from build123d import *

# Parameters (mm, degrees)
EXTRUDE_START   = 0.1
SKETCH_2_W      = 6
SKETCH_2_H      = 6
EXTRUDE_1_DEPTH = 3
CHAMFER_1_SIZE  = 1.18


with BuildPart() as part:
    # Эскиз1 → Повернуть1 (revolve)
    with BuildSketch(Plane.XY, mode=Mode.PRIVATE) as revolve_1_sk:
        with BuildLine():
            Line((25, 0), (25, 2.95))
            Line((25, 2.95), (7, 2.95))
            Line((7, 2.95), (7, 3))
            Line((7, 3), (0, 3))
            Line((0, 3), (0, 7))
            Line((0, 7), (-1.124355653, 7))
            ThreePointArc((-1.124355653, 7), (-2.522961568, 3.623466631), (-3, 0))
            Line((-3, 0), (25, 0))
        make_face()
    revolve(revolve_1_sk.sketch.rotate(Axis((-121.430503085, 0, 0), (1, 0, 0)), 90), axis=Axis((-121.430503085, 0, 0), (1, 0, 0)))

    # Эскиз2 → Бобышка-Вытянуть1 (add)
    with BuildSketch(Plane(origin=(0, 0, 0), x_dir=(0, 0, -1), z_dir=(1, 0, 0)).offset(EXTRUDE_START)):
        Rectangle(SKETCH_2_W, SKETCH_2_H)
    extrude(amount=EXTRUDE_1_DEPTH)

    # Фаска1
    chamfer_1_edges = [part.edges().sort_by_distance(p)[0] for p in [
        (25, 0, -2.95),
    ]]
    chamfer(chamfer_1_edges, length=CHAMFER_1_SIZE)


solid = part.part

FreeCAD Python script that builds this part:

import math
import FreeCAD as App
import Part
import Sketcher
from FreeCAD import Vector
Q = App.Units.Quantity


def edges_at(feature, points):
    """Names of the edges that pass closest to the given points."""
    edges = feature.Shape.Edges
    near = lambda p: min(range(len(edges)), key=lambda i: edges[i].distToShape(Part.Vertex(*p))[0])
    return sorted({f"Edge{near(p) + 1}" for p in points})


def add_polygon(sketch, points):
    """Adds a closed chain of lines whose ends are joined by coincident constraints."""
    first, n = sketch.GeometryCount, len(points)
    for a, b in zip(points, points[1:] + points[:1]):
        sketch.addGeometry(Part.LineSegment(App.Vector(*a, 0), App.Vector(*b, 0)), False)
    for i in range(n):
        sketch.addConstraint(Sketcher.Constraint("Coincident", first + i, 2, first + (i + 1) % n, 1))

doc = App.newDocument("Part")
body = doc.addObject("PartDesign::Body", "Body")

# Sketch on XY plane
sketch1 = body.newObject("Sketcher::SketchObject", "Sketch")
sketch1.AttachmentSupport = (doc.getObject("XY_Plane"), [""])
sketch1.MapMode = "FlatFace"
sketch1.addGeometry([
    Part.LineSegment(Vector(25, 0, 0), Vector(25, 2.95, 0)),  # 0
    Part.LineSegment(Vector(25, 2.95, 0), Vector(7, 2.95, 0)),  # 1
    Part.LineSegment(Vector(7, 2.95, 0), Vector(7, 3, 0)),  # 2
    Part.LineSegment(Vector(7, 3, 0), Vector(0, 3, 0)),  # 3
    Part.LineSegment(Vector(0, 3, 0), Vector(0, 7, 0)),  # 4
    Part.LineSegment(Vector(0, 7, 0), Vector(-1.124356, 7, 0)),  # 5
    Part.ArcOfCircle(Part.Circle(Vector(11, 0, 0), Vector(0, 0, 1), 14), math.radians(150), math.radians(180)),  # 6
    Part.LineSegment(Vector(-3, 0, 0), Vector(25, 0, 0)),  # 7
], False)
sketch1.addConstraint([
    Sketcher.Constraint("Coincident", 0, 2, 1, 1),
    Sketcher.Constraint("Coincident", 1, 2, 2, 1),
    Sketcher.Constraint("Coincident", 2, 2, 3, 1),
    Sketcher.Constraint("Coincident", 3, 2, 4, 1),
    Sketcher.Constraint("Coincident", 4, 2, 5, 1),
    Sketcher.Constraint("Coincident", 5, 2, 6, 1),
    Sketcher.Constraint("Coincident", 6, 2, 7, 1),
    Sketcher.Constraint("Coincident", 7, 2, 0, 1),
    Sketcher.Constraint("Vertical", 0),
    Sketcher.Constraint("Horizontal", 1),
    Sketcher.Constraint("Vertical", 2),
    Sketcher.Constraint("Horizontal", 3),
    Sketcher.Constraint("Vertical", 4),
    Sketcher.Constraint("Horizontal", 5),
    Sketcher.Constraint("Horizontal", 7),
    Sketcher.Constraint("PointOnObject", 6, 3, -1),
    Sketcher.Constraint("PointOnObject", 3, 2, -2),
    Sketcher.Constraint("PointOnObject", 6, 2, -1),
    Sketcher.Constraint("Radius", 6, Q("14 mm")),
    Sketcher.Constraint("DistanceX", 1, 2, 1, 1, Q("18 mm")),
    Sketcher.Constraint("DistanceX", 3, 2, 3, 1, Q("7 mm")),
    Sketcher.Constraint("DistanceX", 7, 1, 7, 2, Q("28 mm")),
    Sketcher.Constraint("DistanceY", 4, 1, 4, 2, Q("4 mm")),
    Sketcher.Constraint("DistanceY", -1, 1, 2, 2, Q("3 mm")),
    Sketcher.Constraint("DistanceY", 0, 1, 0, 2, Q("2.95 mm")),
])
revolution = body.newObject("PartDesign::Revolution", "Revolution")
revolution.Profile = sketch1
revolution.ReferenceAxis = (sketch1, ["H_Axis"])
revolution.Angle = 360

# Sketch on YZ plane
sketch2 = body.newObject("Sketcher::SketchObject", "Sketch001")
sketch2.AttachmentSupport = (doc.getObject("YZ_Plane"), [""])
sketch2.MapMode = "FlatFace"
sketch2.AttachmentOffset = App.Placement(Vector(0, 0, 0.1), App.Rotation())
add_polygon(sketch2, [(3, 3), (-3, 3), (-3, -3), (3, -3)])  # lines 0-3
sketch2.addConstraint([
    Sketcher.Constraint("Horizontal", 0),
    Sketcher.Constraint("Vertical", 1),
    Sketcher.Constraint("Horizontal", 2),
    Sketcher.Constraint("Vertical", 3),
    Sketcher.Constraint("Symmetric", 0, 2, 2, 2, -1, 1),
    Sketcher.Constraint("Equal", 2, 1),
    Sketcher.Constraint("DistanceX", 0, 2, 0, 1, Q("6 mm")),
])
pad1 = body.newObject("PartDesign::Pad", "Pad")
pad1.Profile = sketch2
pad1.Length = 3
doc.recompute()

chamfer = body.newObject("PartDesign::Chamfer", "Chamfer")
chamfer.Base = (pad1, edges_at(pad1, [(25, 0, -2.95)]))
chamfer.Size = 1.18

doc.recompute()
